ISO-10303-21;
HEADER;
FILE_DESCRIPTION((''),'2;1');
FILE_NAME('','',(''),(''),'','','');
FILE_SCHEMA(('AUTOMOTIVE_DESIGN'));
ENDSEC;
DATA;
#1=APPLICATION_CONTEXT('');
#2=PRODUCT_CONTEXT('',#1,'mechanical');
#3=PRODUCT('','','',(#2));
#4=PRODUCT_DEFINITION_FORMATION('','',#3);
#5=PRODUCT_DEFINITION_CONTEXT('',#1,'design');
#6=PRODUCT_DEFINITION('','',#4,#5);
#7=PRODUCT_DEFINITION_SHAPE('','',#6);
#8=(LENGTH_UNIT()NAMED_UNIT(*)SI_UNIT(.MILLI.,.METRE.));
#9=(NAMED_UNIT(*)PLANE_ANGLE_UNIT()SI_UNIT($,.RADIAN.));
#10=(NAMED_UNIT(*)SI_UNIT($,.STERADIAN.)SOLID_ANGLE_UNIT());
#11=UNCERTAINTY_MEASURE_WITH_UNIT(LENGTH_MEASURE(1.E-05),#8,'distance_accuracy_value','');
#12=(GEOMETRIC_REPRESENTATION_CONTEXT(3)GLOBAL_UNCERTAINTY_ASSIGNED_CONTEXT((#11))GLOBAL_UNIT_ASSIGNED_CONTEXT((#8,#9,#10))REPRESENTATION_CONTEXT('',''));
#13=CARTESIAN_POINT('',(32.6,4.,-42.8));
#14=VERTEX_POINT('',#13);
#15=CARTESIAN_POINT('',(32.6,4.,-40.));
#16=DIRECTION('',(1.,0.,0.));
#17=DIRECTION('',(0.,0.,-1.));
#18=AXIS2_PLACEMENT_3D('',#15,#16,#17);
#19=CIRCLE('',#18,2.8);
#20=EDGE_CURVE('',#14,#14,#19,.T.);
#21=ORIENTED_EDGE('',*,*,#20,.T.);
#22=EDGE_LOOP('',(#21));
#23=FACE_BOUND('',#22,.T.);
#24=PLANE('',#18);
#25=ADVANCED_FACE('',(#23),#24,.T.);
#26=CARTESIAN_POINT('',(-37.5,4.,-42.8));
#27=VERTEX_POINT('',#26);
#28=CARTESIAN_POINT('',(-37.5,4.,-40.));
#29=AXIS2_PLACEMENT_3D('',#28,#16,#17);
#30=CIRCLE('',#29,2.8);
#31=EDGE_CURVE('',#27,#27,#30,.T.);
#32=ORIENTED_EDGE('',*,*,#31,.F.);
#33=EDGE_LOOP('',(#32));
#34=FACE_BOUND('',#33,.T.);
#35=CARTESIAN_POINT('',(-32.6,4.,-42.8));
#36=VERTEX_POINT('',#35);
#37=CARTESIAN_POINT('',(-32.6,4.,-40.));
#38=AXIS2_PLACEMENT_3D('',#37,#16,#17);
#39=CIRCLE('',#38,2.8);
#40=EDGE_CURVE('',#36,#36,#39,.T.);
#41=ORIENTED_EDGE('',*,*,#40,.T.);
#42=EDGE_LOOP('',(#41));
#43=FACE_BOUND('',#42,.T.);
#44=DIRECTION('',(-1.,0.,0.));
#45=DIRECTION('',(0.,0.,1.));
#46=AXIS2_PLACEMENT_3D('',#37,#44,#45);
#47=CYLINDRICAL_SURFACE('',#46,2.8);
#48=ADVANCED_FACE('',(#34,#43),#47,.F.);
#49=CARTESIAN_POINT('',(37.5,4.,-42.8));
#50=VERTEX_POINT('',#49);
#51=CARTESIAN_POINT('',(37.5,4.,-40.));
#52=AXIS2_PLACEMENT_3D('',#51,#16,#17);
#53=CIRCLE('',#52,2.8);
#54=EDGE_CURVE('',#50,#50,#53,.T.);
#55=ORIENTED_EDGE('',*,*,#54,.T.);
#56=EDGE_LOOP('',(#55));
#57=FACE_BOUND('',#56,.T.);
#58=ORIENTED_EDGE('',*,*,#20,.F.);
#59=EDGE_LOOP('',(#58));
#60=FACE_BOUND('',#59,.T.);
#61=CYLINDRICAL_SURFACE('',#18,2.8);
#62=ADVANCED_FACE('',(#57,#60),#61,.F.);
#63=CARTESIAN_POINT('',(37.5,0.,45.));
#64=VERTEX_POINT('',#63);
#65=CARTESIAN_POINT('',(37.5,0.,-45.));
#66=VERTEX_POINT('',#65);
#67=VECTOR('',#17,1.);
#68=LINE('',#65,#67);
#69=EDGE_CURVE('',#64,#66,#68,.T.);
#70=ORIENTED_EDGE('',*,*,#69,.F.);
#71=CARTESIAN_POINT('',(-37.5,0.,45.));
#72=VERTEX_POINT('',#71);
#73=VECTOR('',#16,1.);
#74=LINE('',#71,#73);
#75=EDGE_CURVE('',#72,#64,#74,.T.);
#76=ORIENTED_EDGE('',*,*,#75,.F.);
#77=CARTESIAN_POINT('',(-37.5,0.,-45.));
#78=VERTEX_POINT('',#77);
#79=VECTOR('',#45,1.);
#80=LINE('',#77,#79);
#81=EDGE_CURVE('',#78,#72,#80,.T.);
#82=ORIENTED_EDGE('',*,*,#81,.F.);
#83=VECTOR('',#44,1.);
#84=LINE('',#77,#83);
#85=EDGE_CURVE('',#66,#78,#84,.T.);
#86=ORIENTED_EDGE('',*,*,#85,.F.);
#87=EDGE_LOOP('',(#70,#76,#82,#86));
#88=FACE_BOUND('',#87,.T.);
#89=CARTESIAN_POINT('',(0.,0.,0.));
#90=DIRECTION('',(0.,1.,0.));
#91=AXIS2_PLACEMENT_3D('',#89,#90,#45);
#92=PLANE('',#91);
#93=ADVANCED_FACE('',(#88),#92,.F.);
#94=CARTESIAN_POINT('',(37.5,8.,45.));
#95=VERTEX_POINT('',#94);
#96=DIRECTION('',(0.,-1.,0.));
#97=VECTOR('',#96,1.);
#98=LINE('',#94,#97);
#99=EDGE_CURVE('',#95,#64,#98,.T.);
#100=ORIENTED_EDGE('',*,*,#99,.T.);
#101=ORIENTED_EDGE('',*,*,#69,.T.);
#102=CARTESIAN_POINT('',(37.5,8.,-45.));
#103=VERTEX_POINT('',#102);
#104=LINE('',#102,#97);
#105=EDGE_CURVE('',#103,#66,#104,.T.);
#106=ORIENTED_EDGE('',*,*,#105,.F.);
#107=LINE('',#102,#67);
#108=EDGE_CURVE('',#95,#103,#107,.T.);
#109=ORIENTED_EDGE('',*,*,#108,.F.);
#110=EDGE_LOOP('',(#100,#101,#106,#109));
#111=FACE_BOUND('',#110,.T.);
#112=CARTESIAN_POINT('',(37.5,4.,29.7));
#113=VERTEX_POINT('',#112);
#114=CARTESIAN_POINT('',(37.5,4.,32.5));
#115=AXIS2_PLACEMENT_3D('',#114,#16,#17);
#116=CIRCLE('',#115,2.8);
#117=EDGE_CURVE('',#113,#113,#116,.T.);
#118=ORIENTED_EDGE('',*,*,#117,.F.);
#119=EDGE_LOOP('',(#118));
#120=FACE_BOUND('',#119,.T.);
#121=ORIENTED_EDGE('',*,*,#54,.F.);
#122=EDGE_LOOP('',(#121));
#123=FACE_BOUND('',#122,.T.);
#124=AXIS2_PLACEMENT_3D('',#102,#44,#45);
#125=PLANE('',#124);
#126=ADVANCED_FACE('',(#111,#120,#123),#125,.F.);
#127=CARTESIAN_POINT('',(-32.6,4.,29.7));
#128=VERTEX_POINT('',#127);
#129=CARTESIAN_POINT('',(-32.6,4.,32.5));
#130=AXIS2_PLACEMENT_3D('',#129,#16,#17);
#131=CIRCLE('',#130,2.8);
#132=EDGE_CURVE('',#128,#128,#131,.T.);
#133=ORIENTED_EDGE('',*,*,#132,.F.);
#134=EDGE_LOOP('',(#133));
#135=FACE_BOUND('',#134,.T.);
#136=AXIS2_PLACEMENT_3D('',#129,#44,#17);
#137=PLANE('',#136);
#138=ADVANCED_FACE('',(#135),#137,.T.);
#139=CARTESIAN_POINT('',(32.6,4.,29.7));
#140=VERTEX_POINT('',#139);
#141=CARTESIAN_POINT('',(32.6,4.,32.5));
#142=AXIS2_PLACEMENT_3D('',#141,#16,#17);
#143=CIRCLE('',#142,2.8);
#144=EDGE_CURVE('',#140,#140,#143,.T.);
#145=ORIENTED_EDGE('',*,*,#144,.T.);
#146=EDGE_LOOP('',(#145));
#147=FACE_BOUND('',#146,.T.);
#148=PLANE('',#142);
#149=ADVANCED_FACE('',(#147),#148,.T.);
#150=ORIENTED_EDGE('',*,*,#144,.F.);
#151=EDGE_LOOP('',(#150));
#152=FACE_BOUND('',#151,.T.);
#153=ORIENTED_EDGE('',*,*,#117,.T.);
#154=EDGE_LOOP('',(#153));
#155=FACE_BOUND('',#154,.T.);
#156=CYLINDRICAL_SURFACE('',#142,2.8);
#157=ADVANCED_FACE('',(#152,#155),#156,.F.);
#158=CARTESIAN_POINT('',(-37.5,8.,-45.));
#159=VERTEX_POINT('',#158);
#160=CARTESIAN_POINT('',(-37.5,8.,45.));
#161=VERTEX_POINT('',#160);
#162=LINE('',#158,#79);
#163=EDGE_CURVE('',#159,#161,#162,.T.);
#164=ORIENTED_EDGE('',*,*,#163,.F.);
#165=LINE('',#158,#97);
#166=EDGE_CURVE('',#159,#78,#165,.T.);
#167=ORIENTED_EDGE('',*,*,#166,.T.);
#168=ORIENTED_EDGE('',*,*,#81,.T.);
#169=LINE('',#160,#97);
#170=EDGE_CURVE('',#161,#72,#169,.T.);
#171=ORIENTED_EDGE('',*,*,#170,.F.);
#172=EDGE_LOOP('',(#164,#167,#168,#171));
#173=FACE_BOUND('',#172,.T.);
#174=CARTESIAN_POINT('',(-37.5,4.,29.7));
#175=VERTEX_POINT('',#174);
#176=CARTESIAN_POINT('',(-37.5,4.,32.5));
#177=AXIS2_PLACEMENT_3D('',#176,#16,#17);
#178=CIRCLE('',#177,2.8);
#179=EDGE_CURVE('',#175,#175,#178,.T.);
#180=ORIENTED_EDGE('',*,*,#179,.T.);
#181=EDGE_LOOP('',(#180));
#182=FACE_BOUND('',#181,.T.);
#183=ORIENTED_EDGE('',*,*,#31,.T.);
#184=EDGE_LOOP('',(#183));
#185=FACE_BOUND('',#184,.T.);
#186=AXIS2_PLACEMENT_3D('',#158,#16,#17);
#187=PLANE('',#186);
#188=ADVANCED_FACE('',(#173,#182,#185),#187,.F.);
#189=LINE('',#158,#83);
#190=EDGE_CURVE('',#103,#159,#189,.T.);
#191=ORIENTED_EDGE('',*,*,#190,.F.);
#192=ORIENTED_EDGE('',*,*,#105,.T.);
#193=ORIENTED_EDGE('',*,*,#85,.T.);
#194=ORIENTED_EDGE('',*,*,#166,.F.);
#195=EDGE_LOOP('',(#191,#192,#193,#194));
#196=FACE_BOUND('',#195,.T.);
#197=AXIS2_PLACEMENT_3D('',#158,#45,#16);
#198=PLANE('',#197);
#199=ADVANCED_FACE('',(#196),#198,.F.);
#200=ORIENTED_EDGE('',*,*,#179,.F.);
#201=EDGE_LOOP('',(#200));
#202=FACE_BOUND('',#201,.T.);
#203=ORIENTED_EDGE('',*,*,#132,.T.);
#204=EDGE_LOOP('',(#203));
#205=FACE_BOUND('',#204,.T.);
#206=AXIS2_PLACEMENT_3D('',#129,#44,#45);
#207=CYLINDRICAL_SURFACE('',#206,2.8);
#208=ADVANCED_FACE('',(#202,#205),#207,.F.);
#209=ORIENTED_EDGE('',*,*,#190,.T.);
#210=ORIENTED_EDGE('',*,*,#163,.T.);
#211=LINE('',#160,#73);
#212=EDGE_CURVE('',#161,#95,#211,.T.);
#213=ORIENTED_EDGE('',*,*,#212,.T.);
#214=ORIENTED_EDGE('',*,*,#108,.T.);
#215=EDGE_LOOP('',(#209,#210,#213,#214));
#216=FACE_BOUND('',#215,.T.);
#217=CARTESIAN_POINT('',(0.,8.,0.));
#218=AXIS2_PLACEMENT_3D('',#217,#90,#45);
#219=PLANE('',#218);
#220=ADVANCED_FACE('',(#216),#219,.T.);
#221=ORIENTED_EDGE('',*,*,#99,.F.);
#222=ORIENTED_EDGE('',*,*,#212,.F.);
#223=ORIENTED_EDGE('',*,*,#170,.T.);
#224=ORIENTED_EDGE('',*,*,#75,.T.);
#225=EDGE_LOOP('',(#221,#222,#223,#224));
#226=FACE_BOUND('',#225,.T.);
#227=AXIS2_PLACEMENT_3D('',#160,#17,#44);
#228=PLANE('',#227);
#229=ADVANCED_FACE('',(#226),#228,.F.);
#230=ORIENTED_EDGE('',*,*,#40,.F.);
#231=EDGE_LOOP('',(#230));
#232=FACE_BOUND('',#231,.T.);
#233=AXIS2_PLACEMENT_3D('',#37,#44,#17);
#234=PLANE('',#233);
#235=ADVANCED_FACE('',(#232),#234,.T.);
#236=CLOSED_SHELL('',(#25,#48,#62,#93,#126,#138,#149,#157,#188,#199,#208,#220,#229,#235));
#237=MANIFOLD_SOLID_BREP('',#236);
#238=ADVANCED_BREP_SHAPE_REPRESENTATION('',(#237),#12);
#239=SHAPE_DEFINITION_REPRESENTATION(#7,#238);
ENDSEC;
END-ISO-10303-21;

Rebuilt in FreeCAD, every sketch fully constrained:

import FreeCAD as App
import Part
import Sketcher
from FreeCAD import Vector

doc = App.newDocument("Part")
body = doc.addObject("PartDesign::Body", "Body")

# Sketch on XZ plane
sketch1 = body.newObject("Sketcher::SketchObject", "Sketch")
sketch1.AttachmentSupport = (doc.getObject("XZ_Plane"), [""])
sketch1.MapMode = "FlatFace"
sketch1.addGeometry(Part.LineSegment(Vector(-38, -45, 0), Vector(-38, 45, 0)), False)
sketch1.addGeometry(Part.LineSegment(Vector(-38, 45, 0), Vector(38, 45, 0)), False)
sketch1.addGeometry(Part.LineSegment(Vector(38, 45, 0), Vector(38, -45, 0)), False)
sketch1.addGeometry(Part.LineSegment(Vector(38, -45, 0), Vector(-38, -45, 0)), False)
sketch1.addConstraint(Sketcher.Constraint("Coincident", 0, 2, 1, 1))
sketch1.addConstraint(Sketcher.Constraint("Coincident", 1, 2, 2, 1))
sketch1.addConstraint(Sketcher.Constraint("Coincident", 2, 2, 3, 1))
sketch1.addConstraint(Sketcher.Constraint("Coincident", 3, 2, 0, 1))
sketch1.addConstraint(Sketcher.Constraint("Vertical", 0))
sketch1.addConstraint(Sketcher.Constraint("Horizontal", 1))
sketch1.addConstraint(Sketcher.Constraint("Vertical", 2))
sketch1.addConstraint(Sketcher.Constraint("Horizontal", 3))
sketch1.addConstraint(Sketcher.Constraint("Symmetric", 0, 2, 2, 2, -1, 1))
sketch1.addConstraint(Sketcher.Constraint("DistanceX", 1, 1, 1, 2, 75.0))
sketch1.addConstraint(Sketcher.Constraint("DistanceY", 0, 1, 0, 2, 90.0))
pad1 = body.newObject("PartDesign::Pad", "Pad")
pad1.Profile = sketch1
pad1.Length = 8
pad1.Reversed = True

# Sketch on YZ plane
sketch2 = body.newObject("Sketcher::SketchObject", "Sketch001")
sketch2.AttachmentSupport = (doc.getObject("YZ_Plane"), [""])
sketch2.MapMode = "FlatFace"
sketch2.AttachmentOffset = App.Placement(Vector(0, 0, 37.5), App.Rotation())
sketch2.addGeometry(Part.Circle(Vector(4, -40, 0), Vector(0, 0, 1), 2.8), False)
sketch2.addGeometry(Part.Circle(Vector(4, 32.5, 0), Vector(0, 0, 1), 2.8), False)
sketch2.addConstraint(Sketcher.Constraint("Equal", 0, 1))
sketch2.addConstraint(Sketcher.Constraint("Vertical", 0, 3, 1, 3))
sketch2.addConstraint(Sketcher.Constraint("Diameter", 0, 5.6))
sketch2.addConstraint(Sketcher.Constraint("DistanceX", -1, 1, 0, 3, 4.0))
sketch2.addConstraint(Sketcher.Constraint("DistanceY", 0, 3, -1, 1, 40.0))
sketch2.addConstraint(Sketcher.Constraint("DistanceY", -1, 1, 1, 3, 32.5))
pocket1 = body.newObject("PartDesign::Pocket", "Pocket")
pocket1.Profile = sketch2
pocket1.Length = 4.9
doc.recompute()

mirrored = body.newObject("PartDesign::Mirrored", "Mirrored")
mirrored.Originals = [pocket1]
mirrored.MirrorPlane = (doc.getObject("YZ_Plane"), [""])
body.Tip = mirrored

doc.recompute()
